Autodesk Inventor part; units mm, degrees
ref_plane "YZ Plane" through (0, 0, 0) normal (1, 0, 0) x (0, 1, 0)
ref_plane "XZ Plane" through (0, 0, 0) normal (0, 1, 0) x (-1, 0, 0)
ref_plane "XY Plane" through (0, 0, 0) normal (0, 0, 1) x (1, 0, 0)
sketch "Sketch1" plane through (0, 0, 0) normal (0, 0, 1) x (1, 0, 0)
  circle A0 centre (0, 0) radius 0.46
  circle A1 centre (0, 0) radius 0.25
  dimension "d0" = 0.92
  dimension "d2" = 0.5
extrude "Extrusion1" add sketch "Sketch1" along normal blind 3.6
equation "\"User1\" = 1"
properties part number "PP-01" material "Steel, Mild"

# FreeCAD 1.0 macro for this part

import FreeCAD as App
import Part
import Sketcher

doc = App.newDocument("Part")
body = doc.addObject("PartDesign::Body", "Body")

# Sketch on XY plane
sketch1 = body.newObject("Sketcher::SketchObject", "Sketch")
sketch1.AttachmentSupport = (doc.getObject("XY_Plane"), [""])
sketch1.MapMode = "FlatFace"
sketch1.addGeometry([
    Part.Circle(App.Vector(0, 0, 0), App.Vector(0, 0, 1), 0.46),
    Part.Circle(App.Vector(0, 0, 0), App.Vector(0, 0, 1), 0.25),
], False)
sketch1.addConstraint([
    Sketcher.Constraint("Coincident", 0, 3, -1, 1),
    Sketcher.Constraint("Coincident", 1, 3, -1, 1),
    Sketcher.Constraint("Diameter", 1, 0.5),
    Sketcher.Constraint("Diameter", 0, 0.92),
])
pad1 = body.newObject("PartDesign::Pad", "Pad")
pad1.Profile = sketch1
pad1.Length = 3.6

doc.recompute()
